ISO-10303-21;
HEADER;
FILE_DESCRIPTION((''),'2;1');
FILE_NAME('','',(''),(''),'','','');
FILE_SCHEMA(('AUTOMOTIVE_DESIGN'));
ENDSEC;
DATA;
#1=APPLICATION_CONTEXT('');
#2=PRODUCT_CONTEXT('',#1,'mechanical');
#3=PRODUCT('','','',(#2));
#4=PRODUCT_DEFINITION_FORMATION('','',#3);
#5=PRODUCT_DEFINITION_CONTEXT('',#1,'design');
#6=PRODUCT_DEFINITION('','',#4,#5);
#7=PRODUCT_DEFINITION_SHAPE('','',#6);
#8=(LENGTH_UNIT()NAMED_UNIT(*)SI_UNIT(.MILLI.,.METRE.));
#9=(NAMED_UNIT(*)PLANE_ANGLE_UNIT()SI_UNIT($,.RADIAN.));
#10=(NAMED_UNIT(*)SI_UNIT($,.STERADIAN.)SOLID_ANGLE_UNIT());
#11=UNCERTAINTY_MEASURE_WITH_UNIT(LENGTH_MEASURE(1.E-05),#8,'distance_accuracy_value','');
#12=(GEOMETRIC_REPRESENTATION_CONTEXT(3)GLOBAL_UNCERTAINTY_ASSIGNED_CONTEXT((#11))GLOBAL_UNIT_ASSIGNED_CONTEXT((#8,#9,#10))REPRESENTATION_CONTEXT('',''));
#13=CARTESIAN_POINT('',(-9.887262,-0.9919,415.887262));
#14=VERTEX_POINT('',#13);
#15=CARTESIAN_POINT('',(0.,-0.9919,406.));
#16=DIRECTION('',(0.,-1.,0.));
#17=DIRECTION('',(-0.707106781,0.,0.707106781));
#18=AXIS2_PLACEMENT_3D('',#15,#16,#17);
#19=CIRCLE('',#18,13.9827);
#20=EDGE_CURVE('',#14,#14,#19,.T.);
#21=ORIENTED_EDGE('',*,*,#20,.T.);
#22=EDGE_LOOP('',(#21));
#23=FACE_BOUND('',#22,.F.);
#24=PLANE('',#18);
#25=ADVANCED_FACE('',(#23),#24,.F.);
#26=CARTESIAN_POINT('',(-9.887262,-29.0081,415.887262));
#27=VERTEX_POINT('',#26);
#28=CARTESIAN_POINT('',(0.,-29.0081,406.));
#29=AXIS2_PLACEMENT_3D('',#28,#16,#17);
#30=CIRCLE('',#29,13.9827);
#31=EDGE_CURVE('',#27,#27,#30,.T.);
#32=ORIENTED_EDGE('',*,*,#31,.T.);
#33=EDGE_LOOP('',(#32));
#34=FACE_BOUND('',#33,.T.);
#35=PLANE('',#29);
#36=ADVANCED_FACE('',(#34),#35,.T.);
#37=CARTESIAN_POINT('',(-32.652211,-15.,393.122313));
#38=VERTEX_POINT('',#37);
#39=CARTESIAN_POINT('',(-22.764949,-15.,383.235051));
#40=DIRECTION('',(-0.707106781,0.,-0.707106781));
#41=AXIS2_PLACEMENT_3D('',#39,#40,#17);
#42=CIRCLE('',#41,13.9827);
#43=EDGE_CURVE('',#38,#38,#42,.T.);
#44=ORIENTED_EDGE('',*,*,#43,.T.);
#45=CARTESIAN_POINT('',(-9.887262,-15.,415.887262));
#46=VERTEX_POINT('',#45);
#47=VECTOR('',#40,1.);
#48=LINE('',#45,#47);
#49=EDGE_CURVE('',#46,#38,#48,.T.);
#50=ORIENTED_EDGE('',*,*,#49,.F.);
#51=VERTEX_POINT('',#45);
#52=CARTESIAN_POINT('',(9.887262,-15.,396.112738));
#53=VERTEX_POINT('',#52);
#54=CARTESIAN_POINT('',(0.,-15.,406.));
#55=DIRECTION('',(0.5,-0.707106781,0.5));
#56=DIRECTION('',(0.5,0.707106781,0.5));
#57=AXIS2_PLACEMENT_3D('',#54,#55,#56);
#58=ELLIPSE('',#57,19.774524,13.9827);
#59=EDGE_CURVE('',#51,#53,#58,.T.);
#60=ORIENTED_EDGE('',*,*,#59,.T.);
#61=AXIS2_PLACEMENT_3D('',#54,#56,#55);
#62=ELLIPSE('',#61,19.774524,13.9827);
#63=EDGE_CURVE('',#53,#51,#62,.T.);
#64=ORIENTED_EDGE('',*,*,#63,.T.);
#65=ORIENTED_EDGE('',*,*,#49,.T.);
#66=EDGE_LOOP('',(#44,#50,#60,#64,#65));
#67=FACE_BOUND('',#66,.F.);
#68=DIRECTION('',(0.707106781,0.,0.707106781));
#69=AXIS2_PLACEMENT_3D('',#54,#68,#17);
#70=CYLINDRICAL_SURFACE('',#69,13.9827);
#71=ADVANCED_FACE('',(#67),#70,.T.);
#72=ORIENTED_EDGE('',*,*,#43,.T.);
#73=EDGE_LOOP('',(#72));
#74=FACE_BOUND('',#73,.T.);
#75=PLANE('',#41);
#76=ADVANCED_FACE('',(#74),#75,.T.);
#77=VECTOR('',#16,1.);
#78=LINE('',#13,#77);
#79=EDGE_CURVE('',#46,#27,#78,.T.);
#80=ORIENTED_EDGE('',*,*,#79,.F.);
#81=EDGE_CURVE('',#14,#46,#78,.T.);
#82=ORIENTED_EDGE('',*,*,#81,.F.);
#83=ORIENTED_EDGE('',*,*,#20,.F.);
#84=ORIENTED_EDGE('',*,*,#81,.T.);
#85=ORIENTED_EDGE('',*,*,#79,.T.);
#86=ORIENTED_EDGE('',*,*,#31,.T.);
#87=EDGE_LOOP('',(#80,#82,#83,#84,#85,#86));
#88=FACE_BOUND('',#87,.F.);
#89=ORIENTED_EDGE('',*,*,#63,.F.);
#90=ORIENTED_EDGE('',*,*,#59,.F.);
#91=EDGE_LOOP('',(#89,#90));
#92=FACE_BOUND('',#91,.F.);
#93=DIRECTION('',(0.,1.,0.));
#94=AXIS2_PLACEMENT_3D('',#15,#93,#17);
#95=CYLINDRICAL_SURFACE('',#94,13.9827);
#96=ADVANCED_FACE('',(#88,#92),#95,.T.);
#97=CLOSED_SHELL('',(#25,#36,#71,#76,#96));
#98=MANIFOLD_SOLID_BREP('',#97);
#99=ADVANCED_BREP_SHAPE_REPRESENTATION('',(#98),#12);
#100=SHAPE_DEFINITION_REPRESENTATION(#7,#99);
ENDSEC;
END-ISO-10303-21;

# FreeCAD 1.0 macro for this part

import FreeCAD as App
import Part
import Sketcher
from FreeCAD import Vector
Q = App.Units.Quantity

doc = App.newDocument("Part")
body = doc.addObject("PartDesign::Body", "Body")

sketch1 = body.newObject("Sketcher::SketchObject", "Sketch")
sketch1.AttachmentSupport = (doc.getObject("XZ_Plane"), [""])
sketch1.MapMode = "FlatFace"
sketch1.AttachmentOffset = App.Placement(Vector(0, 0, -0.5515 * 25.4), App.Rotation())
sketch1.addGeometry(Part.Circle(Vector(0, 0, 0), Vector(0, 0, 1), 14), False)
sketch1.addConstraint([
    Sketcher.Constraint("Coincident", 0, 3, -1, 1),
    Sketcher.Constraint("Diameter", 0, Q("1.101 in")),
])
pad1 = body.newObject("PartDesign::Pad", "Pad")
pad1.Profile = sketch1
pad1.Length = Q("1.103 in")
body2 = doc.addObject("PartDesign::Body", "Body001")

sketch2 = body2.newObject("Sketcher::SketchObject", "Sketch001")
sketch2.AttachmentSupport = (doc.getObject("XY_Plane001"), [""])
sketch2.MapMode = "FlatFace"
sketch2.addGeometry(Part.Circle(Vector(0, 0, 0), Vector(0, 0, 1), 14), False)
sketch2.addConstraint([
    Sketcher.Constraint("Coincident", 0, 3, -1, 1),
    Sketcher.Constraint("Diameter", 0, Q("1.101 in")),
])
pad2 = body2.newObject("PartDesign::Pad", "Pad001")
pad2.Profile = sketch2
pad2.Length = Q("1.2675 in")
doc.recompute()

boolean = body2.newObject("PartDesign::Boolean", "Boolean")
boolean.Type = "Fuse"
boolean.addObjects([body])
body3 = doc.addObject("PartDesign::Body", "Body002")
doc.recompute()

body2.Placement = App.Placement(Vector(0, -15, 406), App.Rotation(Vector(0, 1, 0), 225))
boolean2 = body3.newObject("PartDesign::Boolean", "Boolean001")
boolean2.Type = "Fuse"
boolean2.addObjects([body2])

doc.recompute()
